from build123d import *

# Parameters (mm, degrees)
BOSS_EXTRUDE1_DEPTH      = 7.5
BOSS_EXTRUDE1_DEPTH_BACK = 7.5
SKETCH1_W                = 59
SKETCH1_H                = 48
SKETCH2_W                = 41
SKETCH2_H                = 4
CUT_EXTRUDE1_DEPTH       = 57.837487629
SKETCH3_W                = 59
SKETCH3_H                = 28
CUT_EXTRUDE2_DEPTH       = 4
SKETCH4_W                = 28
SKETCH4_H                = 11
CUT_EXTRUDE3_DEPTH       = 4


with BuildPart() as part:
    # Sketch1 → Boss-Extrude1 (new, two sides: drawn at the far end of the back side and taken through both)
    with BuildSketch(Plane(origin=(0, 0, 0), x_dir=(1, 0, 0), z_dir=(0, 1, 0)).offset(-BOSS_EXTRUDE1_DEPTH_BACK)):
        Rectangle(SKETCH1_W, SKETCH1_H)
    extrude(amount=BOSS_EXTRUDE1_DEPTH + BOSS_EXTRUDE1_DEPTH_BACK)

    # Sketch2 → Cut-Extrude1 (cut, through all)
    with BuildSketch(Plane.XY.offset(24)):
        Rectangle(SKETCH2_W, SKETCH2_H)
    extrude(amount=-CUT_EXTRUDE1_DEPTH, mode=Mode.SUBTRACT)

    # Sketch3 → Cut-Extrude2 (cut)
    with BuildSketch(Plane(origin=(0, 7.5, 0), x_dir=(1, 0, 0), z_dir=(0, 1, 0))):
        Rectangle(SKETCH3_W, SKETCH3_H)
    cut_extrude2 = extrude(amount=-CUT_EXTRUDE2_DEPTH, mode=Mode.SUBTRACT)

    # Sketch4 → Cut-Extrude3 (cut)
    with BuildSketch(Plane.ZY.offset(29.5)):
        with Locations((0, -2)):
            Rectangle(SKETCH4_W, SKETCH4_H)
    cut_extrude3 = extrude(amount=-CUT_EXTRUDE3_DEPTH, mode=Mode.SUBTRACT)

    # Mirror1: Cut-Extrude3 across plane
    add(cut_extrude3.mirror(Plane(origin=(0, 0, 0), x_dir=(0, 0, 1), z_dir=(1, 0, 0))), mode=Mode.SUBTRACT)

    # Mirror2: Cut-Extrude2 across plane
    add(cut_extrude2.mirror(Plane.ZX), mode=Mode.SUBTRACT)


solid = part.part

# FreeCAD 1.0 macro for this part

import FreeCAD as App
import Part
import Sketcher
from FreeCAD import Vector

doc = App.newDocument("Part")
body = doc.addObject("PartDesign::Body", "Body")

sketch1 = doc.addObject("Sketcher::SketchObject", "Sketch")
body.addObject(sketch1)
sketch1.AttachmentSupport = (doc.XZ_Plane, [""])
sketch1.MapMode = "FlatFace"
sketch1.addGeometry(Part.LineSegment(Vector(-29.5, -24, 0), Vector(-29.5, 24, 0)), False)
sketch1.addGeometry(Part.LineSegment(Vector(-29.5, 24, 0), Vector(29.5, 24, 0)), False)
sketch1.addGeometry(Part.LineSegment(Vector(29.5, 24, 0), Vector(29.5, -24, 0)), False)
sketch1.addGeometry(Part.LineSegment(Vector(29.5, -24, 0), Vector(-29.5, -24, 0)), False)
sketch1.addConstraint(Sketcher.Constraint("Coincident", 0, 2, 1, 1))
sketch1.addConstraint(Sketcher.Constraint("Coincident", 1, 2, 2, 1))
sketch1.addConstraint(Sketcher.Constraint("Coincident", 2, 2, 3, 1))
sketch1.addConstraint(Sketcher.Constraint("Coincident", 3, 2, 0, 1))
sketch1.addConstraint(Sketcher.Constraint("Vertical", 0))
sketch1.addConstraint(Sketcher.Constraint("Horizontal", 1))
sketch1.addConstraint(Sketcher.Constraint("Vertical", 2))
sketch1.addConstraint(Sketcher.Constraint("Horizontal", 3))
sketch1.addConstraint(Sketcher.Constraint("Symmetric", 0, 2, 2, 2, -1, 1))
sketch1.addConstraint(Sketcher.Constraint("DistanceX", 1, 1, 1, 2, 59.0))
sketch1.addConstraint(Sketcher.Constraint("DistanceY", 0, 1, 0, 2, 48.0))
pad1 = doc.addObject("PartDesign::Pad", "Pad")
body.addObject(pad1)
pad1.Profile = sketch1
pad1.Type = "TwoLengths"
pad1.Length = 7.5
pad1.Length2 = 7.5
pad1.Reversed = True

sketch2 = doc.addObject("Sketcher::SketchObject", "Sketch001")
body.addObject(sketch2)
sketch2.AttachmentSupport = (doc.XY_Plane, [""])
sketch2.MapMode = "FlatFace"
sketch2.AttachmentOffset = App.Placement(Vector(0, 0, 24), App.Rotation())
sketch2.addGeometry(Part.LineSegment(Vector(-20.5, 2, 0), Vector(-20.5, -2, 0)), False)
sketch2.addGeometry(Part.LineSegment(Vector(-20.5, -2, 0), Vector(20.5, -2, 0)), False)
sketch2.addGeometry(Part.LineSegment(Vector(20.5, -2, 0), Vector(20.5, 2, 0)), False)
sketch2.addGeometry(Part.LineSegment(Vector(20.5, 2, 0), Vector(-20.5, 2, 0)), False)
sketch2.addConstraint(Sketcher.Constraint("Coincident", 0, 2, 1, 1))
sketch2.addConstraint(Sketcher.Constraint("Coincident", 1, 2, 2, 1))
sketch2.addConstraint(Sketcher.Constraint("Coincident", 2, 2, 3, 1))
sketch2.addConstraint(Sketcher.Constraint("Coincident", 3, 2, 0, 1))
sketch2.addConstraint(Sketcher.Constraint("Vertical", 0))
sketch2.addConstraint(Sketcher.Constraint("Horizontal", 1))
sketch2.addConstraint(Sketcher.Constraint("Vertical", 2))
sketch2.addConstraint(Sketcher.Constraint("Horizontal", 3))
sketch2.addConstraint(Sketcher.Constraint("Symmetric", 0, 2, 2, 2, -1, 1))
sketch2.addConstraint(Sketcher.Constraint("DistanceX", 1, 1, 1, 2, 41.0))
sketch2.addConstraint(Sketcher.Constraint("DistanceY", 0, 2, 0, 1, 4.0))
pocket1 = doc.addObject("PartDesign::Pocket", "Pocket")
body.addObject(pocket1)
pocket1.Profile = sketch2
pocket1.Type = "ThroughAll"

sketch3 = doc.addObject("Sketcher::SketchObject", "Sketch002")
body.addObject(sketch3)
sketch3.AttachmentSupport = (doc.XZ_Plane, [""])
sketch3.MapMode = "FlatFace"
sketch3.AttachmentOffset = App.Placement(Vector(0, 0, -7.5), App.Rotation())
sketch3.addGeometry(Part.LineSegment(Vector(-29.5, -14, 0), Vector(-29.5, 14, 0)), False)
sketch3.addGeometry(Part.LineSegment(Vector(-29.5, 14, 0), Vector(29.5, 14, 0)), False)
sketch3.addGeometry(Part.LineSegment(Vector(29.5, 14, 0), Vector(29.5, -14, 0)), False)
sketch3.addGeometry(Part.LineSegment(Vector(29.5, -14, 0), Vector(-29.5, -14, 0)), False)
sketch3.addConstraint(Sketcher.Constraint("Coincident", 0, 2, 1, 1))
sketch3.addConstraint(Sketcher.Constraint("Coincident", 1, 2, 2, 1))
sketch3.addConstraint(Sketcher.Constraint("Coincident", 2, 2, 3, 1))
sketch3.addConstraint(Sketcher.Constraint("Coincident", 3, 2, 0, 1))
sketch3.addConstraint(Sketcher.Constraint("Vertical", 0))
sketch3.addConstraint(Sketcher.Constraint("Horizontal", 1))
sketch3.addConstraint(Sketcher.Constraint("Vertical", 2))
sketch3.addConstraint(Sketcher.Constraint("Horizontal", 3))
sketch3.addConstraint(Sketcher.Constraint("Symmetric", 0, 2, 2, 2, -1, 1))
sketch3.addConstraint(Sketcher.Constraint("DistanceX", 1, 1, 1, 2, 59.0))
sketch3.addConstraint(Sketcher.Constraint("DistanceY", 0, 1, 0, 2, 28.0))
pocket2 = doc.addObject("PartDesign::Pocket", "Pocket001")
body.addObject(pocket2)
pocket2.Profile = sketch3
pocket2.Length = 4
pocket2.Reversed = True

sketch4 = doc.addObject("Sketcher::SketchObject", "Sketch003")
body.addObject(sketch4)
sketch4.AttachmentSupport = (doc.YZ_Plane, [""])
sketch4.MapMode = "FlatFace"
sketch4.AttachmentOffset = App.Placement(Vector(0, 0, -29.5), App.Rotation())
sketch4.addGeometry(Part.LineSegment(Vector(3.5, -14, 0), Vector(-7.5, -14, 0)), False)
sketch4.addGeometry(Part.LineSegment(Vector(-7.5, -14, 0), Vector(-7.5, 14, 0)), False)
sketch4.addGeometry(Part.LineSegment(Vector(-7.5, 14, 0), Vector(3.5, 14, 0)), False)
sketch4.addGeometry(Part.LineSegment(Vector(3.5, 14, 0), Vector(3.5, -14, 0)), False)
sketch4.addConstraint(Sketcher.Constraint("Coincident", 0, 2, 1, 1))
sketch4.addConstraint(Sketcher.Constraint("Coincident", 1, 2, 2, 1))
sketch4.addConstraint(Sketcher.Constraint("Coincident", 2, 2, 3, 1))
sketch4.addConstraint(Sketcher.Constraint("Coincident", 3, 2, 0, 1))
sketch4.addConstraint(Sketcher.Constraint("Horizontal", 0))
sketch4.addConstraint(Sketcher.Constraint("Vertical", 1))
sketch4.addConstraint(Sketcher.Constraint("Horizontal", 2))
sketch4.addConstraint(Sketcher.Constraint("Vertical", 3))
sketch4.addConstraint(Sketcher.Constraint("DistanceX", 0, 2, 0, 1, 11.0))
sketch4.addConstraint(Sketcher.Constraint("DistanceY", 1, 1, 1, 2, 28.0))
sketch4.addConstraint(Sketcher.Constraint("DistanceY", 0, 2, -1, 1, 14.0))
sketch4.addConstraint(Sketcher.Constraint("DistanceX", 0, 2, -1, 1, 7.5))
pocket3 = doc.addObject("PartDesign::Pocket", "Pocket002")
body.addObject(pocket3)
pocket3.Profile = sketch4
pocket3.Length = 4
pocket3.Reversed = True
doc.recompute()

mirrored = doc.addObject("PartDesign::Mirrored", "Mirrored")
body.addObject(mirrored)
mirrored.Originals = [pocket3]
mirrored.MirrorPlane = (doc.YZ_Plane, [""])
body.Tip = mirrored
doc.recompute()

mirrored2 = doc.addObject("PartDesign::Mirrored", "Mirrored001")
body.addObject(mirrored2)
mirrored2.Originals = [pocket2]
mirrored2.MirrorPlane = (doc.XZ_Plane, [""])
body.Tip = mirrored2

doc.recompute()
